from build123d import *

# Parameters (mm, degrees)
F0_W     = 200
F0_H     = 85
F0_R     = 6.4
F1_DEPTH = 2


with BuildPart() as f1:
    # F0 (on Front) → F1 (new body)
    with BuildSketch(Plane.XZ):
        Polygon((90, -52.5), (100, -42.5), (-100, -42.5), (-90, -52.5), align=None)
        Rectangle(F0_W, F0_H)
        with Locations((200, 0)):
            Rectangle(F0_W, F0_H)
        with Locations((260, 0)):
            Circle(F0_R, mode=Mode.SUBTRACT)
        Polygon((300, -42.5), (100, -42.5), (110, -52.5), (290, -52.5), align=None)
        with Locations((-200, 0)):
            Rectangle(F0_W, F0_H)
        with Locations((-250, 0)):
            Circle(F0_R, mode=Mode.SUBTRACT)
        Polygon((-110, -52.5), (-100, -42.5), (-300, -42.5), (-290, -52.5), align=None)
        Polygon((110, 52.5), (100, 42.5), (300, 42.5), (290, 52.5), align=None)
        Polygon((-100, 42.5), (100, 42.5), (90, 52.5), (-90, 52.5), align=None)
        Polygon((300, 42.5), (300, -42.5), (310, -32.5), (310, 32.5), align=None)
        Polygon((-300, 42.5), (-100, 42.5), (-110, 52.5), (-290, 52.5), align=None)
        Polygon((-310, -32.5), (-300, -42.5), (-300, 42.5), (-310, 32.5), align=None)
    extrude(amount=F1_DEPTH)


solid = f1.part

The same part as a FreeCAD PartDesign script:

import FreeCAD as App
import Part
import Sketcher
Q = App.Units.Quantity


def add_polygon(sketch, points):
    """Adds a closed chain of lines whose ends are joined by coincident constraints."""
    first, n = sketch.GeometryCount, len(points)
    for a, b in zip(points, points[1:] + points[:1]):
        sketch.addGeometry(Part.LineSegment(App.Vector(*a, 0), App.Vector(*b, 0)), False)
    for i in range(n):
        sketch.addConstraint(Sketcher.Constraint("Coincident", first + i, 2, first + (i + 1) % n, 1))

doc = App.newDocument("Part")
body = doc.addObject("PartDesign::Body", "Body")

# Sketch on XZ plane
sketch1 = body.newObject("Sketcher::SketchObject", "Sketch")
sketch1.AttachmentSupport = (doc.getObject("XZ_Plane"), [""])
sketch1.MapMode = "FlatFace"
add_polygon(sketch1, [(90, -52), (100, -42), (110, -52), (290, -52), (310, -32), (310, 32), (290, 52), (110, 52), (100, 42), (90, 52), (-90, 52), (-100, 42), (-110, 52), (-290, 52), (-310, 32), (-310, -32), (-290, -52), (-110, -52), (-100, -42), (-90, -52)])  # lines 0-19
sketch1.addGeometry(Part.Circle(App.Vector(-250, 0, 0), App.Vector(0, 0, 1), 6), False)  # 20
sketch1.addGeometry(Part.Circle(App.Vector(260, 0, 0), App.Vector(0, 0, 1), 6), False)  # 21
sketch1.addConstraint([
    Sketcher.Constraint("Horizontal", 2),
    Sketcher.Constraint("Vertical", 4),
    Sketcher.Constraint("Horizontal", 6),
    Sketcher.Constraint("Horizontal", 9),
    Sketcher.Constraint("Horizontal", 12),
    Sketcher.Constraint("Vertical", 14),
    Sketcher.Constraint("Horizontal", 16),
    Sketcher.Constraint("Horizontal", 19),
    Sketcher.Constraint("Equal", 20, 21),
    Sketcher.Constraint("Symmetric", 0, 2, 10, 2, -1, 1),
    Sketcher.Constraint("Symmetric", 1, 2, 11, 2, -1, 1),
    Sketcher.Constraint("Symmetric", 3, 2, 13, 2, -1, 1),
    Sketcher.Constraint("Symmetric", 5, 2, 15, 2, -1, 1),
    Sketcher.Constraint("Symmetric", 7, 2, 17, 2, -1, 1),
    Sketcher.Constraint("Symmetric", 8, 2, 18, 2, -1, 1),
    Sketcher.Constraint("Symmetric", 7, 2, 10, 2, -2),
    Sketcher.Constraint("Symmetric", 6, 2, 11, 2, -2),
    Sketcher.Constraint("PointOnObject", 20, 3, -1),
    Sketcher.Constraint("PointOnObject", 21, 3, -1),
    Sketcher.Constraint("Perpendicular", 0, 1),
    Sketcher.Constraint("Perpendicular", 1, 3),
    Sketcher.Constraint("Perpendicular", 3, 5),
    Sketcher.Constraint("Perpendicular", 5, 7),
    Sketcher.Constraint("Perpendicular", 7, 8),
    Sketcher.Constraint("Perpendicular", 8, 10),
    Sketcher.Constraint("Perpendicular", 11, 13),
    Sketcher.Constraint("Perpendicular", 13, 15),
    Sketcher.Constraint("Perpendicular", 15, 17),
    Sketcher.Constraint("Horizontal", 6, 2, 8, 2),
    Sketcher.Constraint("Horizontal", 4, 2, 13, 2),
    Sketcher.Constraint("Equal", 6, 9),
    Sketcher.Constraint("Diameter", 20, Q("12.8 mm")),
    Sketcher.Constraint("DistanceX", 2, 1, 2, 2, Q("180 mm")),
    Sketcher.Constraint("DistanceY", 4, 1, 4, 2, Q("65 mm")),
    Sketcher.Constraint("DistanceX", 20, 3, -1, 1, Q("250 mm")),
    Sketcher.Constraint("DistanceX", -1, 1, 21, 3, Q("260 mm")),
    Sketcher.Constraint("DistanceX", -1, 1, 0, 2, Q("100 mm")),
    Sketcher.Constraint("DistanceX", -1, 1, 3, 2, Q("310 mm")),
])
pad1 = body.newObject("PartDesign::Pad", "Pad")
pad1.Profile = sketch1
pad1.Length = 2

doc.recompute()
